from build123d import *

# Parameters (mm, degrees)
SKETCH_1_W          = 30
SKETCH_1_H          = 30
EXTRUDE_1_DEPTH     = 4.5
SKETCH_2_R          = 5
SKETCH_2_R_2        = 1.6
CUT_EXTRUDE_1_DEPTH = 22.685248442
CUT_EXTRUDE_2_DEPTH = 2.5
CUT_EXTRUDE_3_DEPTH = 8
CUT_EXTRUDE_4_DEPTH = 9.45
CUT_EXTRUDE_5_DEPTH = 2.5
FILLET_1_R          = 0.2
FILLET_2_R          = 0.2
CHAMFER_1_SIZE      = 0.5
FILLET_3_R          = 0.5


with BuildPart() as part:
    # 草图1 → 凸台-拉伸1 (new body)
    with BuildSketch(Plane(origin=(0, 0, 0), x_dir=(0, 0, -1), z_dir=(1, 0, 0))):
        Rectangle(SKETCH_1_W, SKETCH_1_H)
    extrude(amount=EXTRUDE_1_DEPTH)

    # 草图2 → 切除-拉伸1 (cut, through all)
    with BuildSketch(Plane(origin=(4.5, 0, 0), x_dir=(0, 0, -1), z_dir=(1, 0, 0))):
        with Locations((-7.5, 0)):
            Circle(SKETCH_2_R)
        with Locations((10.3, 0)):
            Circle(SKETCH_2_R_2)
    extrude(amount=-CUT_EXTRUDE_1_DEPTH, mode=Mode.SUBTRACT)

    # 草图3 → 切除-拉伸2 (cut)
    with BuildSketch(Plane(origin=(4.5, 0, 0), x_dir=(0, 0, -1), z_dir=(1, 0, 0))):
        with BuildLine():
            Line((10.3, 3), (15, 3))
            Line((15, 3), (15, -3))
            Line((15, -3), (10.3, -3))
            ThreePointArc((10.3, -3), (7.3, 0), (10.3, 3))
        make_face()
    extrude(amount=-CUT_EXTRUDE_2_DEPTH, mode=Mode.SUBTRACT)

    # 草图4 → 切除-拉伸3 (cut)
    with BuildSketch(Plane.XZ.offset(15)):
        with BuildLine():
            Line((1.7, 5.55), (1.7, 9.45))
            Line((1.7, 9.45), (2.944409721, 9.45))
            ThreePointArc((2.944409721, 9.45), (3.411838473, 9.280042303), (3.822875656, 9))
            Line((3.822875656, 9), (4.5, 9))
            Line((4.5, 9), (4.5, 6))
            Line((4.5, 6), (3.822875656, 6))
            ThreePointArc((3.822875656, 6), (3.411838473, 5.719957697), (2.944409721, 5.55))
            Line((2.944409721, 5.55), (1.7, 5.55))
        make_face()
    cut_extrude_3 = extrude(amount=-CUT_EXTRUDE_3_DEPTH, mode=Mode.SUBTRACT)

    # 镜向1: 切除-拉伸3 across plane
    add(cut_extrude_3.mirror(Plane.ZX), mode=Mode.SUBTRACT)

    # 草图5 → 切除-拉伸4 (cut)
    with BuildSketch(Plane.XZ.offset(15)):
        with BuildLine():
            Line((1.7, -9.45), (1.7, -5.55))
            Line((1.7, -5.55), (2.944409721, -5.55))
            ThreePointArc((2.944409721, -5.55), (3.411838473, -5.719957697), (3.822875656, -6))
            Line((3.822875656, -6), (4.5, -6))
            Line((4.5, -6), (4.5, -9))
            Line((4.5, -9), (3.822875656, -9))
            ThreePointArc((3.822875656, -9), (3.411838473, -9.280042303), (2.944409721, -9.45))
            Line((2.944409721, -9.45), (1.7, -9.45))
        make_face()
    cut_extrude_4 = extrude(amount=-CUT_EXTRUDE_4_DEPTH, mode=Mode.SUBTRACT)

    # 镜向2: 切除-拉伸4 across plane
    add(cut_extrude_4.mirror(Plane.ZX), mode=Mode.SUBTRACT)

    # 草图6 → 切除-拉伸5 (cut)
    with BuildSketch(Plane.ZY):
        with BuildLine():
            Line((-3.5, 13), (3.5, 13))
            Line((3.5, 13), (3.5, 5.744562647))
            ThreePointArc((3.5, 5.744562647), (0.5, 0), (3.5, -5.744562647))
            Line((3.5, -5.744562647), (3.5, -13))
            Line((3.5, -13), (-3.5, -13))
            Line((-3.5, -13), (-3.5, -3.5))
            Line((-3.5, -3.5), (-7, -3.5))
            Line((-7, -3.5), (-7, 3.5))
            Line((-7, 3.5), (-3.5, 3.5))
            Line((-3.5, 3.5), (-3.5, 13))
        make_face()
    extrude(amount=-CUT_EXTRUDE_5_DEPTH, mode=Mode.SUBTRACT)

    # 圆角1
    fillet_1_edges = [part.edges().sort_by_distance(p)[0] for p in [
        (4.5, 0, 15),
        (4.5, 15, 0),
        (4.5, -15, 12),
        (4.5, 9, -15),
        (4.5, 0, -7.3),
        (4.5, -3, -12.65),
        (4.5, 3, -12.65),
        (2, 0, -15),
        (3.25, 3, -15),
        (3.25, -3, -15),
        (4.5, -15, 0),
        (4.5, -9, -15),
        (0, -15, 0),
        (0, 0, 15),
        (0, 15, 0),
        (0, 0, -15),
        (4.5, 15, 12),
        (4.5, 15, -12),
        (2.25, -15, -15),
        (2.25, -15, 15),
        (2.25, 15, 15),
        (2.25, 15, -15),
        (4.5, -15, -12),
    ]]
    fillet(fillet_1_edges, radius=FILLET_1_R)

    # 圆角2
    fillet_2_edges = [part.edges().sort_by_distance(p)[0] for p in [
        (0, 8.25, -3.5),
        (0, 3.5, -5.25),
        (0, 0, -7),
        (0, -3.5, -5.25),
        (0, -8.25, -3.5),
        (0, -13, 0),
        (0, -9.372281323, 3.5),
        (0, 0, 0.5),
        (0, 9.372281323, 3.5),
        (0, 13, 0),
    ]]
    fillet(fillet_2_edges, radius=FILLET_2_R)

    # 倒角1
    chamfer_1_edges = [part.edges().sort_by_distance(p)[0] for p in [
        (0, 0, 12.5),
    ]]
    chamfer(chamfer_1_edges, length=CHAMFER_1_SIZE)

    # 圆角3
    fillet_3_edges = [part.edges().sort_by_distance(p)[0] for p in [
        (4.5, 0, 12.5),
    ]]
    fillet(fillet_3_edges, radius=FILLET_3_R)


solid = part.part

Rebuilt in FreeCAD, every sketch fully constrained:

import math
import FreeCAD as App
import Part
import Sketcher
from FreeCAD import Vector


def edges_at(feature, points):
    """Names of the edges that pass closest to the given points."""
    edges = feature.Shape.Edges
    near = lambda p: min(range(len(edges)), key=lambda i: edges[i].distToShape(Part.Vertex(*p))[0])
    return sorted({f"Edge{near(p) + 1}" for p in points})


def add_polygon(sketch, points):
    """Adds a closed chain of lines whose ends are joined by coincident constraints."""
    first, n = sketch.GeometryCount, len(points)
    for a, b in zip(points, points[1:] + points[:1]):
        sketch.addGeometry(Part.LineSegment(App.Vector(*a, 0), App.Vector(*b, 0)), False)
    for i in range(n):
        sketch.addConstraint(Sketcher.Constraint("Coincident", first + i, 2, first + (i + 1) % n, 1))

doc = App.newDocument("Part")
params = doc.addObject("Spreadsheet::Sheet", "Params")
for row, (alias, value) in enumerate([
    ("sketch1_width", "30 mm"),
    ("pad1_length", "4.5 mm"),
    ("sketch2_diameter", "10 mm"),
    ("sketch2_diameter2", "3.2 mm"),
    ("sketch3_radius", "3 mm"),
    ("sketch3_height", "4.7 mm"),
    ("pocket2_length", "2.5 mm"),
    ("sketch4_radius", "2 mm"),
    ("sketch4_height", "3 mm"),
    ("sketch4_height2", "3.9 mm"),
    ("pocket3_length", "8 mm"),
    ("sketch5_radius", "2 mm"),
    ("sketch5_height", "3 mm"),
    ("sketch5_height2", "3.9 mm"),
    ("pocket4_length", "9.45 mm"),
    ("sketch6_radius", "7 mm"),
    ("sketch6_width", "7 mm"),
    ("sketch6_width2", "9.5 mm"),
    ("sketch6_height", "3.5 mm"),
    ("pocket5_length", "2.5 mm"),
    ("fillet_radius", "0.2 mm"),
    ("fillet2_radius", "0.2 mm"),
    ("chamfer_size", "0.5 mm"),
    ("fillet3_radius", "0.5 mm"),
], start=1):
    params.set(f"A{row}", alias)
    params.set(f"B{row}", "=" + value)
    params.setAlias(f"B{row}", alias)

body = doc.addObject("PartDesign::Body", "Body")

# Sketch on YZ plane
sketch1 = body.newObject("Sketcher::SketchObject", "Sketch")
sketch1.AttachmentSupport = (doc.getObject("YZ_Plane"), [""])
sketch1.MapMode = "FlatFace"
add_polygon(sketch1, [(15, 15), (-15, 15), (-15, -15), (15, -15)])  # lines 0-3
sketch1.addConstraint([
    Sketcher.Constraint("Horizontal", 0),
    Sketcher.Constraint("Vertical", 1),
    Sketcher.Constraint("Horizontal", 2),
    Sketcher.Constraint("Vertical", 3),
    Sketcher.Constraint("Symmetric", 0, 2, 2, 2, -1, 1),
    Sketcher.Constraint("Equal", 2, 1),
    Sketcher.Constraint("DistanceX", 0, 2, 0, 1, 30.0),
])
sketch1.setExpression("Constraints[10]", "Params.sketch1_width")
pad1 = body.newObject("PartDesign::Pad", "Pad")
pad1.Profile = sketch1
pad1.setExpression("Length", "Params.pad1_length")

# Sketch on YZ plane
sketch2 = body.newObject("Sketcher::SketchObject", "Sketch001")
sketch2.AttachmentSupport = (doc.getObject("YZ_Plane"), [""])
sketch2.MapMode = "FlatFace"
sketch2.AttachmentOffset = App.Placement(Vector(0, 0, 4.5), App.Rotation())
sketch2.addGeometry([
    Part.Circle(Vector(0, 7.5, 0), Vector(0, 0, 1), 5),
    Part.Circle(Vector(0, -10.3, 0), Vector(0, 0, 1), 1.6),
], False)
sketch2.addConstraint([
    Sketcher.Constraint("PointOnObject", 0, 3, -2),
    Sketcher.Constraint("PointOnObject", 1, 3, -2),
    Sketcher.Constraint("Diameter", 0, 10.0),
    Sketcher.Constraint("Diameter", 1, 3.2),
    Sketcher.Constraint("DistanceY", -1, 1, 0, 3, 7.5),
    Sketcher.Constraint("DistanceY", 1, 3, -1, 1, 10.3),
])
sketch2.setExpression("Constraints[2]", "Params.sketch2_diameter")
sketch2.setExpression("Constraints[3]", "Params.sketch2_diameter2")
pocket1 = body.newObject("PartDesign::Pocket", "Pocket")
pocket1.Profile = sketch2
pocket1.Type = "ThroughAll"

# Sketch on YZ plane
sketch3 = body.newObject("Sketcher::SketchObject", "Sketch002")
sketch3.AttachmentSupport = (doc.getObject("YZ_Plane"), [""])
sketch3.MapMode = "FlatFace"
sketch3.AttachmentOffset = App.Placement(Vector(0, 0, 4.5), App.Rotation())
sketch3.addGeometry([
    Part.LineSegment(Vector(3, -15, 0), Vector(3, -10.3, 0)),
    Part.ArcOfCircle(Part.Circle(Vector(0, -10.3, 0), Vector(0, 0, 1), 3), math.radians(0), math.radians(180)),
    Part.LineSegment(Vector(-3, -10.3, 0), Vector(-3, -15, 0)),
    Part.LineSegment(Vector(-3, -15, 0), Vector(3, -15, 0)),
], False)
sketch3.addConstraint([
    Sketcher.Constraint("Tangent", 0, 2, 1, 1),
    Sketcher.Constraint("Tangent", 1, 2, 2, 1),
    Sketcher.Constraint("Coincident", 2, 2, 3, 1),
    Sketcher.Constraint("Coincident", 3, 2, 0, 1),
    Sketcher.Constraint("Vertical", 0),
    Sketcher.Constraint("Vertical", 2),
    Sketcher.Constraint("Horizontal", 3),
    Sketcher.Constraint("PointOnObject", 1, 3, -2),
    Sketcher.Constraint("Radius", 1, 3.0),
    Sketcher.Constraint("DistanceY", 0, 1, 0, 2, 4.7),
    Sketcher.Constraint("DistanceY", 2, 2, -1, 1, 15.0),
])
sketch3.setExpression("Constraints[8]", "Params.sketch3_radius")
sketch3.setExpression("Constraints[9]", "Params.sketch3_height")
pocket2 = body.newObject("PartDesign::Pocket", "Pocket001")
pocket2.Profile = sketch3
pocket2.setExpression("Length", "Params.pocket2_length")

# Sketch on XZ plane
sketch4 = body.newObject("Sketcher::SketchObject", "Sketch003")
sketch4.AttachmentSupport = (doc.getObject("XZ_Plane"), [""])
sketch4.MapMode = "FlatFace"
sketch4.AttachmentOffset = App.Placement(Vector(0, 0, 15), App.Rotation())
sketch4.addGeometry([
    Part.LineSegment(Vector(1.7, 9.4, 0), Vector(1.7, 5.5, 0)),  # 0
    Part.LineSegment(Vector(1.7, 5.5, 0), Vector(2.9, 5.5, 0)),  # 1
    Part.ArcOfCircle(Part.Circle(Vector(2.5, 7.5, 0), Vector(0, 0, 1), 2), math.radians(-77), math.radians(-49)),  # 2
    Part.LineSegment(Vector(3.8, 6, 0), Vector(4.5, 6, 0)),  # 3
    Part.LineSegment(Vector(4.5, 6, 0), Vector(4.5, 9, 0)),  # 4
    Part.LineSegment(Vector(4.5, 9, 0), Vector(3.8, 9, 0)),  # 5
    Part.ArcOfCircle(Part.Circle(Vector(2.5, 7.5, 0), Vector(0, 0, 1), 2), math.radians(49), math.radians(77)),  # 6
    Part.LineSegment(Vector(2.9, 9.4, 0), Vector(1.7, 9.4, 0)),  # 7
], False)
sketch4.addConstraint([
    Sketcher.Constraint("Coincident", 0, 2, 1, 1),
    Sketcher.Constraint("Coincident", 1, 2, 2, 1),
    Sketcher.Constraint("Coincident", 2, 2, 3, 1),
    Sketcher.Constraint("Coincident", 3, 2, 4, 1),
    Sketcher.Constraint("Coincident", 4, 2, 5, 1),
    Sketcher.Constraint("Coincident", 5, 2, 6, 1),
    Sketcher.Constraint("Coincident", 6, 2, 7, 1),
    Sketcher.Constraint("Coincident", 7, 2, 0, 1),
    Sketcher.Constraint("Vertical", 0),
    Sketcher.Constraint("Horizontal", 1),
    Sketcher.Constraint("Horizontal", 3),
    Sketcher.Constraint("Vertical", 4),
    Sketcher.Constraint("Horizontal", 5),
    Sketcher.Constraint("Horizontal", 7),
    Sketcher.Constraint("Coincident", 6, 3, 2, 3),
    Sketcher.Constraint("Equal", 2, 6),
    Sketcher.Constraint("Vertical", 2, 2, 5, 2),
    Sketcher.Constraint("Vertical", 1, 2, 6, 2),
    Sketcher.Constraint("Radius", 2, 2.0),
    Sketcher.Constraint("DistanceY", 4, 1, 4, 2, 3.0),
    Sketcher.Constraint("DistanceY", 0, 2, 0, 1, 3.9),
    Sketcher.Constraint("DistanceY", -1, 1, 2, 2, 6.0),
    Sketcher.Constraint("DistanceX", 2, 3, 3, 2, 2.0),
    Sketcher.Constraint("DistanceX", -1, 1, 2, 3, 2.5),
    Sketcher.Constraint("DistanceX", -1, 1, 0, 2, 1.7),
])
sketch4.setExpression("Constraints[18]", "Params.sketch4_radius")
sketch4.setExpression("Constraints[19]", "Params.sketch4_height")
sketch4.setExpression("Constraints[20]", "Params.sketch4_height2")
pocket3 = body.newObject("PartDesign::Pocket", "Pocket002")
pocket3.Profile = sketch4
pocket3.setExpression("Length", "Params.pocket3_length")
doc.recompute()

mirrored = body.newObject("PartDesign::Mirrored", "Mirrored")
mirrored.Originals = [pocket3]
mirrored.MirrorPlane = (doc.getObject("XZ_Plane"), [""])
body.Tip = mirrored

# Sketch on XZ plane
sketch5 = body.newObject("Sketcher::SketchObject", "Sketch004")
sketch5.AttachmentSupport = (doc.getObject("XZ_Plane"), [""])
sketch5.MapMode = "FlatFace"
sketch5.AttachmentOffset = App.Placement(Vector(0, 0, 15), App.Rotation())
sketch5.addGeometry([
    Part.LineSegment(Vector(1.7, -5.5, 0), Vector(1.7, -9.4, 0)),  # 0
    Part.LineSegment(Vector(1.7, -9.4, 0), Vector(2.9, -9.4, 0)),  # 1
    Part.ArcOfCircle(Part.Circle(Vector(2.5, -7.5, 0), Vector(0, 0, 1), 2), math.radians(-77), math.radians(-49)),  # 2
    Part.LineSegment(Vector(3.8, -9, 0), Vector(4.5, -9, 0)),  # 3
    Part.LineSegment(Vector(4.5, -9, 0), Vector(4.5, -6, 0)),  # 4
    Part.LineSegment(Vector(4.5, -6, 0), Vector(3.8, -6, 0)),  # 5
    Part.ArcOfCircle(Part.Circle(Vector(2.5, -7.5, 0), Vector(0, 0, 1), 2), math.radians(49), math.radians(77)),  # 6
    Part.LineSegment(Vector(2.9, -5.5, 0), Vector(1.7, -5.5, 0)),  # 7
], False)
sketch5.addConstraint([
    Sketcher.Constraint("Coincident", 0, 2, 1, 1),
    Sketcher.Constraint("Coincident", 1, 2, 2, 1),
    Sketcher.Constraint("Coincident", 2, 2, 3, 1),
    Sketcher.Constraint("Coincident", 3, 2, 4, 1),
    Sketcher.Constraint("Coincident", 4, 2, 5, 1),
    Sketcher.Constraint("Coincident", 5, 2, 6, 1),
    Sketcher.Constraint("Coincident", 6, 2, 7, 1),
    Sketcher.Constraint("Coincident", 7, 2, 0, 1),
    Sketcher.Constraint("Vertical", 0),
    Sketcher.Constraint("Horizontal", 1),
    Sketcher.Constraint("Horizontal", 3),
    Sketcher.Constraint("Vertical", 4),
    Sketcher.Constraint("Horizontal", 5),
    Sketcher.Constraint("Horizontal", 7),
    Sketcher.Constraint("Coincident", 6, 3, 2, 3),
    Sketcher.Constraint("Equal", 2, 6),
    Sketcher.Constraint("Vertical", 2, 2, 5, 2),
    Sketcher.Constraint("Vertical", 1, 2, 6, 2),
    Sketcher.Constraint("Radius", 2, 2.0),
    Sketcher.Constraint("DistanceY", 4, 1, 4, 2, 3.0),
    Sketcher.Constraint("DistanceY", 0, 2, 0, 1, 3.9),
    Sketcher.Constraint("DistanceY", 2, 2, -1, 1, 9.0),
    Sketcher.Constraint("DistanceX", 2, 3, 3, 2, 2.0),
    Sketcher.Constraint("DistanceX", -1, 1, 2, 3, 2.5),
    Sketcher.Constraint("DistanceX", -1, 1, 0, 2, 1.7),
])
sketch5.setExpression("Constraints[18]", "Params.sketch5_radius")
sketch5.setExpression("Constraints[19]", "Params.sketch5_height")
sketch5.setExpression("Constraints[20]", "Params.sketch5_height2")
pocket4 = body.newObject("PartDesign::Pocket", "Pocket003")
pocket4.Profile = sketch5
pocket4.setExpression("Length", "Params.pocket4_length")
doc.recompute()

mirrored2 = body.newObject("PartDesign::Mirrored", "Mirrored001")
mirrored2.Originals = [pocket4]
mirrored2.MirrorPlane = (doc.getObject("XZ_Plane"), [""])
body.Tip = mirrored2

# Sketch on YZ plane
sketch6 = body.newObject("Sketcher::SketchObject", "Sketch005")
sketch6.AttachmentSupport = (doc.getObject("YZ_Plane"), [""])
sketch6.MapMode = "FlatFace"
sketch6.addGeometry([
    Part.LineSegment(Vector(13, 3.5, 0), Vector(13, -3.5, 0)),  # 0
    Part.LineSegment(Vector(13, -3.5, 0), Vector(3.5, -3.5, 0)),  # 1
    Part.LineSegment(Vector(3.5, -3.5, 0), Vector(3.5, -7, 0)),  # 2
    Part.LineSegment(Vector(3.5, -7, 0), Vector(-3.5, -7, 0)),  # 3
    Part.LineSegment(Vector(-3.5, -7, 0), Vector(-3.5, -3.5, 0)),  # 4
    Part.LineSegment(Vector(-3.5, -3.5, 0), Vector(-13, -3.5, 0)),  # 5
    Part.LineSegment(Vector(-13, -3.5, 0), Vector(-13, 3.5, 0)),  # 6
    Part.LineSegment(Vector(-13, 3.5, 0), Vector(-5.7, 3.5, 0)),  # 7
    Part.ArcOfCircle(Part.Circle(Vector(0, 7.5, 0), Vector(0, 0, 1), 7), math.radians(-145), math.radians(-35)),  # 8
    Part.LineSegment(Vector(5.7, 3.5, 0), Vector(13, 3.5, 0)),  # 9
], False)
sketch6.addConstraint([
    Sketcher.Constraint("Coincident", 0, 2, 1, 1),
    Sketcher.Constraint("Coincident", 1, 2, 2, 1),
    Sketcher.Constraint("Coincident", 2, 2, 3, 1),
    Sketcher.Constraint("Coincident", 3, 2, 4, 1),
    Sketcher.Constraint("Coincident", 4, 2, 5, 1),
    Sketcher.Constraint("Coincident", 5, 2, 6, 1),
    Sketcher.Constraint("Coincident", 6, 2, 7, 1),
    Sketcher.Constraint("Coincident", 7, 2, 8, 1),
    Sketcher.Constraint("Coincident", 8, 2, 9, 1),
    Sketcher.Constraint("Coincident", 9, 2, 0, 1),
    Sketcher.Constraint("Vertical", 0),
    Sketcher.Constraint("Horizontal", 1),
    Sketcher.Constraint("Vertical", 2),
    Sketcher.Constraint("Horizontal", 3),
    Sketcher.Constraint("Vertical", 4),
    Sketcher.Constraint("Horizontal", 5),
    Sketcher.Constraint("Vertical", 6),
    Sketcher.Constraint("Horizontal", 7),
    Sketcher.Constraint("Horizontal", 9),
    Sketcher.Constraint("Symmetric", 0, 2, 6, 2, -1, 1),
    Sketcher.Constraint("Symmetric", 1, 2, 4, 2, -2),
    Sketcher.Constraint("Symmetric", 7, 2, 8, 2, -2),
    Sketcher.Constraint("Equal", 3, 0),
    Sketcher.Constraint("Radius", 8, 7.0),
    Sketcher.Constraint("DistanceX", 3, 2, 3, 1, 7.0),
    Sketcher.Constraint("DistanceX", 1, 2, 1, 1, 9.5),
    Sketcher.Constraint("DistanceY", 2, 2, 2, 1, 3.5),
    Sketcher.Constraint("DistanceY", 0, 2, 8, 3, 11.0),
])
sketch6.setExpression("Constraints[23]", "Params.sketch6_radius")
sketch6.setExpression("Constraints[24]", "Params.sketch6_width")
sketch6.setExpression("Constraints[25]", "Params.sketch6_width2")
sketch6.setExpression("Constraints[26]", "Params.sketch6_height")
pocket5 = body.newObject("PartDesign::Pocket", "Pocket004")
pocket5.Profile = sketch6
pocket5.setExpression("Length", "Params.pocket5_length")
pocket5.Reversed = True
doc.recompute()

fillet = body.newObject("PartDesign::Fillet", "Fillet")
fillet.Base = (pocket5, edges_at(pocket5, [
    (4.5, 0, 15),
    (4.5, 15, 0),
    (4.5, -15, 12),
    (4.5, 9, -15),
    (4.5, 0, -7.3),
    (4.5, -3, -12.65),
    (4.5, 3, -12.65),
    (2, 0, -15),
    (3.25, 3, -15),
    (3.25, -3, -15),
    (4.5, -15, 0),
    (4.5, -9, -15),
    (0, -15, 0),
    (0, 0, 15),
    (0, 15, 0),
    (0, 0, -15),
    (4.5, 15, 12),
    (4.5, 15, -12),
    (2.25, -15, -15),
    (2.25, -15, 15),
    (2.25, 15, 15),
    (2.25, 15, -15),
    (4.5, -15, -12),
]))
fillet.setExpression("Radius", "Params.fillet_radius")
doc.recompute()

fillet2 = body.newObject("PartDesign::Fillet", "Fillet001")
fillet2.Base = (fillet, edges_at(fillet, [
    (0, 8.25, -3.5),
    (0, 3.5, -5.25),
    (0, 0, -7),
    (0, -3.5, -5.25),
    (0, -8.25, -3.5),
    (0, -13, 0),
    (0, -9.372, 3.5),
    (0, 0, 0.5),
    (0, 9.372, 3.5),
    (0, 13, 0),
]))
fillet2.setExpression("Radius", "Params.fillet2_radius")
doc.recompute()

chamfer = body.newObject("PartDesign::Chamfer", "Chamfer")
chamfer.Base = (fillet2, edges_at(fillet2, [(0, 0, 12.5)]))
chamfer.setExpression("Size", "Params.chamfer_size")
doc.recompute()

fillet3 = body.newObject("PartDesign::Fillet", "Fillet002")
fillet3.Base = (chamfer, edges_at(chamfer, [(4.5, 0, 12.5)]))
fillet3.setExpression("Radius", "Params.fillet3_radius")

doc.recompute()
